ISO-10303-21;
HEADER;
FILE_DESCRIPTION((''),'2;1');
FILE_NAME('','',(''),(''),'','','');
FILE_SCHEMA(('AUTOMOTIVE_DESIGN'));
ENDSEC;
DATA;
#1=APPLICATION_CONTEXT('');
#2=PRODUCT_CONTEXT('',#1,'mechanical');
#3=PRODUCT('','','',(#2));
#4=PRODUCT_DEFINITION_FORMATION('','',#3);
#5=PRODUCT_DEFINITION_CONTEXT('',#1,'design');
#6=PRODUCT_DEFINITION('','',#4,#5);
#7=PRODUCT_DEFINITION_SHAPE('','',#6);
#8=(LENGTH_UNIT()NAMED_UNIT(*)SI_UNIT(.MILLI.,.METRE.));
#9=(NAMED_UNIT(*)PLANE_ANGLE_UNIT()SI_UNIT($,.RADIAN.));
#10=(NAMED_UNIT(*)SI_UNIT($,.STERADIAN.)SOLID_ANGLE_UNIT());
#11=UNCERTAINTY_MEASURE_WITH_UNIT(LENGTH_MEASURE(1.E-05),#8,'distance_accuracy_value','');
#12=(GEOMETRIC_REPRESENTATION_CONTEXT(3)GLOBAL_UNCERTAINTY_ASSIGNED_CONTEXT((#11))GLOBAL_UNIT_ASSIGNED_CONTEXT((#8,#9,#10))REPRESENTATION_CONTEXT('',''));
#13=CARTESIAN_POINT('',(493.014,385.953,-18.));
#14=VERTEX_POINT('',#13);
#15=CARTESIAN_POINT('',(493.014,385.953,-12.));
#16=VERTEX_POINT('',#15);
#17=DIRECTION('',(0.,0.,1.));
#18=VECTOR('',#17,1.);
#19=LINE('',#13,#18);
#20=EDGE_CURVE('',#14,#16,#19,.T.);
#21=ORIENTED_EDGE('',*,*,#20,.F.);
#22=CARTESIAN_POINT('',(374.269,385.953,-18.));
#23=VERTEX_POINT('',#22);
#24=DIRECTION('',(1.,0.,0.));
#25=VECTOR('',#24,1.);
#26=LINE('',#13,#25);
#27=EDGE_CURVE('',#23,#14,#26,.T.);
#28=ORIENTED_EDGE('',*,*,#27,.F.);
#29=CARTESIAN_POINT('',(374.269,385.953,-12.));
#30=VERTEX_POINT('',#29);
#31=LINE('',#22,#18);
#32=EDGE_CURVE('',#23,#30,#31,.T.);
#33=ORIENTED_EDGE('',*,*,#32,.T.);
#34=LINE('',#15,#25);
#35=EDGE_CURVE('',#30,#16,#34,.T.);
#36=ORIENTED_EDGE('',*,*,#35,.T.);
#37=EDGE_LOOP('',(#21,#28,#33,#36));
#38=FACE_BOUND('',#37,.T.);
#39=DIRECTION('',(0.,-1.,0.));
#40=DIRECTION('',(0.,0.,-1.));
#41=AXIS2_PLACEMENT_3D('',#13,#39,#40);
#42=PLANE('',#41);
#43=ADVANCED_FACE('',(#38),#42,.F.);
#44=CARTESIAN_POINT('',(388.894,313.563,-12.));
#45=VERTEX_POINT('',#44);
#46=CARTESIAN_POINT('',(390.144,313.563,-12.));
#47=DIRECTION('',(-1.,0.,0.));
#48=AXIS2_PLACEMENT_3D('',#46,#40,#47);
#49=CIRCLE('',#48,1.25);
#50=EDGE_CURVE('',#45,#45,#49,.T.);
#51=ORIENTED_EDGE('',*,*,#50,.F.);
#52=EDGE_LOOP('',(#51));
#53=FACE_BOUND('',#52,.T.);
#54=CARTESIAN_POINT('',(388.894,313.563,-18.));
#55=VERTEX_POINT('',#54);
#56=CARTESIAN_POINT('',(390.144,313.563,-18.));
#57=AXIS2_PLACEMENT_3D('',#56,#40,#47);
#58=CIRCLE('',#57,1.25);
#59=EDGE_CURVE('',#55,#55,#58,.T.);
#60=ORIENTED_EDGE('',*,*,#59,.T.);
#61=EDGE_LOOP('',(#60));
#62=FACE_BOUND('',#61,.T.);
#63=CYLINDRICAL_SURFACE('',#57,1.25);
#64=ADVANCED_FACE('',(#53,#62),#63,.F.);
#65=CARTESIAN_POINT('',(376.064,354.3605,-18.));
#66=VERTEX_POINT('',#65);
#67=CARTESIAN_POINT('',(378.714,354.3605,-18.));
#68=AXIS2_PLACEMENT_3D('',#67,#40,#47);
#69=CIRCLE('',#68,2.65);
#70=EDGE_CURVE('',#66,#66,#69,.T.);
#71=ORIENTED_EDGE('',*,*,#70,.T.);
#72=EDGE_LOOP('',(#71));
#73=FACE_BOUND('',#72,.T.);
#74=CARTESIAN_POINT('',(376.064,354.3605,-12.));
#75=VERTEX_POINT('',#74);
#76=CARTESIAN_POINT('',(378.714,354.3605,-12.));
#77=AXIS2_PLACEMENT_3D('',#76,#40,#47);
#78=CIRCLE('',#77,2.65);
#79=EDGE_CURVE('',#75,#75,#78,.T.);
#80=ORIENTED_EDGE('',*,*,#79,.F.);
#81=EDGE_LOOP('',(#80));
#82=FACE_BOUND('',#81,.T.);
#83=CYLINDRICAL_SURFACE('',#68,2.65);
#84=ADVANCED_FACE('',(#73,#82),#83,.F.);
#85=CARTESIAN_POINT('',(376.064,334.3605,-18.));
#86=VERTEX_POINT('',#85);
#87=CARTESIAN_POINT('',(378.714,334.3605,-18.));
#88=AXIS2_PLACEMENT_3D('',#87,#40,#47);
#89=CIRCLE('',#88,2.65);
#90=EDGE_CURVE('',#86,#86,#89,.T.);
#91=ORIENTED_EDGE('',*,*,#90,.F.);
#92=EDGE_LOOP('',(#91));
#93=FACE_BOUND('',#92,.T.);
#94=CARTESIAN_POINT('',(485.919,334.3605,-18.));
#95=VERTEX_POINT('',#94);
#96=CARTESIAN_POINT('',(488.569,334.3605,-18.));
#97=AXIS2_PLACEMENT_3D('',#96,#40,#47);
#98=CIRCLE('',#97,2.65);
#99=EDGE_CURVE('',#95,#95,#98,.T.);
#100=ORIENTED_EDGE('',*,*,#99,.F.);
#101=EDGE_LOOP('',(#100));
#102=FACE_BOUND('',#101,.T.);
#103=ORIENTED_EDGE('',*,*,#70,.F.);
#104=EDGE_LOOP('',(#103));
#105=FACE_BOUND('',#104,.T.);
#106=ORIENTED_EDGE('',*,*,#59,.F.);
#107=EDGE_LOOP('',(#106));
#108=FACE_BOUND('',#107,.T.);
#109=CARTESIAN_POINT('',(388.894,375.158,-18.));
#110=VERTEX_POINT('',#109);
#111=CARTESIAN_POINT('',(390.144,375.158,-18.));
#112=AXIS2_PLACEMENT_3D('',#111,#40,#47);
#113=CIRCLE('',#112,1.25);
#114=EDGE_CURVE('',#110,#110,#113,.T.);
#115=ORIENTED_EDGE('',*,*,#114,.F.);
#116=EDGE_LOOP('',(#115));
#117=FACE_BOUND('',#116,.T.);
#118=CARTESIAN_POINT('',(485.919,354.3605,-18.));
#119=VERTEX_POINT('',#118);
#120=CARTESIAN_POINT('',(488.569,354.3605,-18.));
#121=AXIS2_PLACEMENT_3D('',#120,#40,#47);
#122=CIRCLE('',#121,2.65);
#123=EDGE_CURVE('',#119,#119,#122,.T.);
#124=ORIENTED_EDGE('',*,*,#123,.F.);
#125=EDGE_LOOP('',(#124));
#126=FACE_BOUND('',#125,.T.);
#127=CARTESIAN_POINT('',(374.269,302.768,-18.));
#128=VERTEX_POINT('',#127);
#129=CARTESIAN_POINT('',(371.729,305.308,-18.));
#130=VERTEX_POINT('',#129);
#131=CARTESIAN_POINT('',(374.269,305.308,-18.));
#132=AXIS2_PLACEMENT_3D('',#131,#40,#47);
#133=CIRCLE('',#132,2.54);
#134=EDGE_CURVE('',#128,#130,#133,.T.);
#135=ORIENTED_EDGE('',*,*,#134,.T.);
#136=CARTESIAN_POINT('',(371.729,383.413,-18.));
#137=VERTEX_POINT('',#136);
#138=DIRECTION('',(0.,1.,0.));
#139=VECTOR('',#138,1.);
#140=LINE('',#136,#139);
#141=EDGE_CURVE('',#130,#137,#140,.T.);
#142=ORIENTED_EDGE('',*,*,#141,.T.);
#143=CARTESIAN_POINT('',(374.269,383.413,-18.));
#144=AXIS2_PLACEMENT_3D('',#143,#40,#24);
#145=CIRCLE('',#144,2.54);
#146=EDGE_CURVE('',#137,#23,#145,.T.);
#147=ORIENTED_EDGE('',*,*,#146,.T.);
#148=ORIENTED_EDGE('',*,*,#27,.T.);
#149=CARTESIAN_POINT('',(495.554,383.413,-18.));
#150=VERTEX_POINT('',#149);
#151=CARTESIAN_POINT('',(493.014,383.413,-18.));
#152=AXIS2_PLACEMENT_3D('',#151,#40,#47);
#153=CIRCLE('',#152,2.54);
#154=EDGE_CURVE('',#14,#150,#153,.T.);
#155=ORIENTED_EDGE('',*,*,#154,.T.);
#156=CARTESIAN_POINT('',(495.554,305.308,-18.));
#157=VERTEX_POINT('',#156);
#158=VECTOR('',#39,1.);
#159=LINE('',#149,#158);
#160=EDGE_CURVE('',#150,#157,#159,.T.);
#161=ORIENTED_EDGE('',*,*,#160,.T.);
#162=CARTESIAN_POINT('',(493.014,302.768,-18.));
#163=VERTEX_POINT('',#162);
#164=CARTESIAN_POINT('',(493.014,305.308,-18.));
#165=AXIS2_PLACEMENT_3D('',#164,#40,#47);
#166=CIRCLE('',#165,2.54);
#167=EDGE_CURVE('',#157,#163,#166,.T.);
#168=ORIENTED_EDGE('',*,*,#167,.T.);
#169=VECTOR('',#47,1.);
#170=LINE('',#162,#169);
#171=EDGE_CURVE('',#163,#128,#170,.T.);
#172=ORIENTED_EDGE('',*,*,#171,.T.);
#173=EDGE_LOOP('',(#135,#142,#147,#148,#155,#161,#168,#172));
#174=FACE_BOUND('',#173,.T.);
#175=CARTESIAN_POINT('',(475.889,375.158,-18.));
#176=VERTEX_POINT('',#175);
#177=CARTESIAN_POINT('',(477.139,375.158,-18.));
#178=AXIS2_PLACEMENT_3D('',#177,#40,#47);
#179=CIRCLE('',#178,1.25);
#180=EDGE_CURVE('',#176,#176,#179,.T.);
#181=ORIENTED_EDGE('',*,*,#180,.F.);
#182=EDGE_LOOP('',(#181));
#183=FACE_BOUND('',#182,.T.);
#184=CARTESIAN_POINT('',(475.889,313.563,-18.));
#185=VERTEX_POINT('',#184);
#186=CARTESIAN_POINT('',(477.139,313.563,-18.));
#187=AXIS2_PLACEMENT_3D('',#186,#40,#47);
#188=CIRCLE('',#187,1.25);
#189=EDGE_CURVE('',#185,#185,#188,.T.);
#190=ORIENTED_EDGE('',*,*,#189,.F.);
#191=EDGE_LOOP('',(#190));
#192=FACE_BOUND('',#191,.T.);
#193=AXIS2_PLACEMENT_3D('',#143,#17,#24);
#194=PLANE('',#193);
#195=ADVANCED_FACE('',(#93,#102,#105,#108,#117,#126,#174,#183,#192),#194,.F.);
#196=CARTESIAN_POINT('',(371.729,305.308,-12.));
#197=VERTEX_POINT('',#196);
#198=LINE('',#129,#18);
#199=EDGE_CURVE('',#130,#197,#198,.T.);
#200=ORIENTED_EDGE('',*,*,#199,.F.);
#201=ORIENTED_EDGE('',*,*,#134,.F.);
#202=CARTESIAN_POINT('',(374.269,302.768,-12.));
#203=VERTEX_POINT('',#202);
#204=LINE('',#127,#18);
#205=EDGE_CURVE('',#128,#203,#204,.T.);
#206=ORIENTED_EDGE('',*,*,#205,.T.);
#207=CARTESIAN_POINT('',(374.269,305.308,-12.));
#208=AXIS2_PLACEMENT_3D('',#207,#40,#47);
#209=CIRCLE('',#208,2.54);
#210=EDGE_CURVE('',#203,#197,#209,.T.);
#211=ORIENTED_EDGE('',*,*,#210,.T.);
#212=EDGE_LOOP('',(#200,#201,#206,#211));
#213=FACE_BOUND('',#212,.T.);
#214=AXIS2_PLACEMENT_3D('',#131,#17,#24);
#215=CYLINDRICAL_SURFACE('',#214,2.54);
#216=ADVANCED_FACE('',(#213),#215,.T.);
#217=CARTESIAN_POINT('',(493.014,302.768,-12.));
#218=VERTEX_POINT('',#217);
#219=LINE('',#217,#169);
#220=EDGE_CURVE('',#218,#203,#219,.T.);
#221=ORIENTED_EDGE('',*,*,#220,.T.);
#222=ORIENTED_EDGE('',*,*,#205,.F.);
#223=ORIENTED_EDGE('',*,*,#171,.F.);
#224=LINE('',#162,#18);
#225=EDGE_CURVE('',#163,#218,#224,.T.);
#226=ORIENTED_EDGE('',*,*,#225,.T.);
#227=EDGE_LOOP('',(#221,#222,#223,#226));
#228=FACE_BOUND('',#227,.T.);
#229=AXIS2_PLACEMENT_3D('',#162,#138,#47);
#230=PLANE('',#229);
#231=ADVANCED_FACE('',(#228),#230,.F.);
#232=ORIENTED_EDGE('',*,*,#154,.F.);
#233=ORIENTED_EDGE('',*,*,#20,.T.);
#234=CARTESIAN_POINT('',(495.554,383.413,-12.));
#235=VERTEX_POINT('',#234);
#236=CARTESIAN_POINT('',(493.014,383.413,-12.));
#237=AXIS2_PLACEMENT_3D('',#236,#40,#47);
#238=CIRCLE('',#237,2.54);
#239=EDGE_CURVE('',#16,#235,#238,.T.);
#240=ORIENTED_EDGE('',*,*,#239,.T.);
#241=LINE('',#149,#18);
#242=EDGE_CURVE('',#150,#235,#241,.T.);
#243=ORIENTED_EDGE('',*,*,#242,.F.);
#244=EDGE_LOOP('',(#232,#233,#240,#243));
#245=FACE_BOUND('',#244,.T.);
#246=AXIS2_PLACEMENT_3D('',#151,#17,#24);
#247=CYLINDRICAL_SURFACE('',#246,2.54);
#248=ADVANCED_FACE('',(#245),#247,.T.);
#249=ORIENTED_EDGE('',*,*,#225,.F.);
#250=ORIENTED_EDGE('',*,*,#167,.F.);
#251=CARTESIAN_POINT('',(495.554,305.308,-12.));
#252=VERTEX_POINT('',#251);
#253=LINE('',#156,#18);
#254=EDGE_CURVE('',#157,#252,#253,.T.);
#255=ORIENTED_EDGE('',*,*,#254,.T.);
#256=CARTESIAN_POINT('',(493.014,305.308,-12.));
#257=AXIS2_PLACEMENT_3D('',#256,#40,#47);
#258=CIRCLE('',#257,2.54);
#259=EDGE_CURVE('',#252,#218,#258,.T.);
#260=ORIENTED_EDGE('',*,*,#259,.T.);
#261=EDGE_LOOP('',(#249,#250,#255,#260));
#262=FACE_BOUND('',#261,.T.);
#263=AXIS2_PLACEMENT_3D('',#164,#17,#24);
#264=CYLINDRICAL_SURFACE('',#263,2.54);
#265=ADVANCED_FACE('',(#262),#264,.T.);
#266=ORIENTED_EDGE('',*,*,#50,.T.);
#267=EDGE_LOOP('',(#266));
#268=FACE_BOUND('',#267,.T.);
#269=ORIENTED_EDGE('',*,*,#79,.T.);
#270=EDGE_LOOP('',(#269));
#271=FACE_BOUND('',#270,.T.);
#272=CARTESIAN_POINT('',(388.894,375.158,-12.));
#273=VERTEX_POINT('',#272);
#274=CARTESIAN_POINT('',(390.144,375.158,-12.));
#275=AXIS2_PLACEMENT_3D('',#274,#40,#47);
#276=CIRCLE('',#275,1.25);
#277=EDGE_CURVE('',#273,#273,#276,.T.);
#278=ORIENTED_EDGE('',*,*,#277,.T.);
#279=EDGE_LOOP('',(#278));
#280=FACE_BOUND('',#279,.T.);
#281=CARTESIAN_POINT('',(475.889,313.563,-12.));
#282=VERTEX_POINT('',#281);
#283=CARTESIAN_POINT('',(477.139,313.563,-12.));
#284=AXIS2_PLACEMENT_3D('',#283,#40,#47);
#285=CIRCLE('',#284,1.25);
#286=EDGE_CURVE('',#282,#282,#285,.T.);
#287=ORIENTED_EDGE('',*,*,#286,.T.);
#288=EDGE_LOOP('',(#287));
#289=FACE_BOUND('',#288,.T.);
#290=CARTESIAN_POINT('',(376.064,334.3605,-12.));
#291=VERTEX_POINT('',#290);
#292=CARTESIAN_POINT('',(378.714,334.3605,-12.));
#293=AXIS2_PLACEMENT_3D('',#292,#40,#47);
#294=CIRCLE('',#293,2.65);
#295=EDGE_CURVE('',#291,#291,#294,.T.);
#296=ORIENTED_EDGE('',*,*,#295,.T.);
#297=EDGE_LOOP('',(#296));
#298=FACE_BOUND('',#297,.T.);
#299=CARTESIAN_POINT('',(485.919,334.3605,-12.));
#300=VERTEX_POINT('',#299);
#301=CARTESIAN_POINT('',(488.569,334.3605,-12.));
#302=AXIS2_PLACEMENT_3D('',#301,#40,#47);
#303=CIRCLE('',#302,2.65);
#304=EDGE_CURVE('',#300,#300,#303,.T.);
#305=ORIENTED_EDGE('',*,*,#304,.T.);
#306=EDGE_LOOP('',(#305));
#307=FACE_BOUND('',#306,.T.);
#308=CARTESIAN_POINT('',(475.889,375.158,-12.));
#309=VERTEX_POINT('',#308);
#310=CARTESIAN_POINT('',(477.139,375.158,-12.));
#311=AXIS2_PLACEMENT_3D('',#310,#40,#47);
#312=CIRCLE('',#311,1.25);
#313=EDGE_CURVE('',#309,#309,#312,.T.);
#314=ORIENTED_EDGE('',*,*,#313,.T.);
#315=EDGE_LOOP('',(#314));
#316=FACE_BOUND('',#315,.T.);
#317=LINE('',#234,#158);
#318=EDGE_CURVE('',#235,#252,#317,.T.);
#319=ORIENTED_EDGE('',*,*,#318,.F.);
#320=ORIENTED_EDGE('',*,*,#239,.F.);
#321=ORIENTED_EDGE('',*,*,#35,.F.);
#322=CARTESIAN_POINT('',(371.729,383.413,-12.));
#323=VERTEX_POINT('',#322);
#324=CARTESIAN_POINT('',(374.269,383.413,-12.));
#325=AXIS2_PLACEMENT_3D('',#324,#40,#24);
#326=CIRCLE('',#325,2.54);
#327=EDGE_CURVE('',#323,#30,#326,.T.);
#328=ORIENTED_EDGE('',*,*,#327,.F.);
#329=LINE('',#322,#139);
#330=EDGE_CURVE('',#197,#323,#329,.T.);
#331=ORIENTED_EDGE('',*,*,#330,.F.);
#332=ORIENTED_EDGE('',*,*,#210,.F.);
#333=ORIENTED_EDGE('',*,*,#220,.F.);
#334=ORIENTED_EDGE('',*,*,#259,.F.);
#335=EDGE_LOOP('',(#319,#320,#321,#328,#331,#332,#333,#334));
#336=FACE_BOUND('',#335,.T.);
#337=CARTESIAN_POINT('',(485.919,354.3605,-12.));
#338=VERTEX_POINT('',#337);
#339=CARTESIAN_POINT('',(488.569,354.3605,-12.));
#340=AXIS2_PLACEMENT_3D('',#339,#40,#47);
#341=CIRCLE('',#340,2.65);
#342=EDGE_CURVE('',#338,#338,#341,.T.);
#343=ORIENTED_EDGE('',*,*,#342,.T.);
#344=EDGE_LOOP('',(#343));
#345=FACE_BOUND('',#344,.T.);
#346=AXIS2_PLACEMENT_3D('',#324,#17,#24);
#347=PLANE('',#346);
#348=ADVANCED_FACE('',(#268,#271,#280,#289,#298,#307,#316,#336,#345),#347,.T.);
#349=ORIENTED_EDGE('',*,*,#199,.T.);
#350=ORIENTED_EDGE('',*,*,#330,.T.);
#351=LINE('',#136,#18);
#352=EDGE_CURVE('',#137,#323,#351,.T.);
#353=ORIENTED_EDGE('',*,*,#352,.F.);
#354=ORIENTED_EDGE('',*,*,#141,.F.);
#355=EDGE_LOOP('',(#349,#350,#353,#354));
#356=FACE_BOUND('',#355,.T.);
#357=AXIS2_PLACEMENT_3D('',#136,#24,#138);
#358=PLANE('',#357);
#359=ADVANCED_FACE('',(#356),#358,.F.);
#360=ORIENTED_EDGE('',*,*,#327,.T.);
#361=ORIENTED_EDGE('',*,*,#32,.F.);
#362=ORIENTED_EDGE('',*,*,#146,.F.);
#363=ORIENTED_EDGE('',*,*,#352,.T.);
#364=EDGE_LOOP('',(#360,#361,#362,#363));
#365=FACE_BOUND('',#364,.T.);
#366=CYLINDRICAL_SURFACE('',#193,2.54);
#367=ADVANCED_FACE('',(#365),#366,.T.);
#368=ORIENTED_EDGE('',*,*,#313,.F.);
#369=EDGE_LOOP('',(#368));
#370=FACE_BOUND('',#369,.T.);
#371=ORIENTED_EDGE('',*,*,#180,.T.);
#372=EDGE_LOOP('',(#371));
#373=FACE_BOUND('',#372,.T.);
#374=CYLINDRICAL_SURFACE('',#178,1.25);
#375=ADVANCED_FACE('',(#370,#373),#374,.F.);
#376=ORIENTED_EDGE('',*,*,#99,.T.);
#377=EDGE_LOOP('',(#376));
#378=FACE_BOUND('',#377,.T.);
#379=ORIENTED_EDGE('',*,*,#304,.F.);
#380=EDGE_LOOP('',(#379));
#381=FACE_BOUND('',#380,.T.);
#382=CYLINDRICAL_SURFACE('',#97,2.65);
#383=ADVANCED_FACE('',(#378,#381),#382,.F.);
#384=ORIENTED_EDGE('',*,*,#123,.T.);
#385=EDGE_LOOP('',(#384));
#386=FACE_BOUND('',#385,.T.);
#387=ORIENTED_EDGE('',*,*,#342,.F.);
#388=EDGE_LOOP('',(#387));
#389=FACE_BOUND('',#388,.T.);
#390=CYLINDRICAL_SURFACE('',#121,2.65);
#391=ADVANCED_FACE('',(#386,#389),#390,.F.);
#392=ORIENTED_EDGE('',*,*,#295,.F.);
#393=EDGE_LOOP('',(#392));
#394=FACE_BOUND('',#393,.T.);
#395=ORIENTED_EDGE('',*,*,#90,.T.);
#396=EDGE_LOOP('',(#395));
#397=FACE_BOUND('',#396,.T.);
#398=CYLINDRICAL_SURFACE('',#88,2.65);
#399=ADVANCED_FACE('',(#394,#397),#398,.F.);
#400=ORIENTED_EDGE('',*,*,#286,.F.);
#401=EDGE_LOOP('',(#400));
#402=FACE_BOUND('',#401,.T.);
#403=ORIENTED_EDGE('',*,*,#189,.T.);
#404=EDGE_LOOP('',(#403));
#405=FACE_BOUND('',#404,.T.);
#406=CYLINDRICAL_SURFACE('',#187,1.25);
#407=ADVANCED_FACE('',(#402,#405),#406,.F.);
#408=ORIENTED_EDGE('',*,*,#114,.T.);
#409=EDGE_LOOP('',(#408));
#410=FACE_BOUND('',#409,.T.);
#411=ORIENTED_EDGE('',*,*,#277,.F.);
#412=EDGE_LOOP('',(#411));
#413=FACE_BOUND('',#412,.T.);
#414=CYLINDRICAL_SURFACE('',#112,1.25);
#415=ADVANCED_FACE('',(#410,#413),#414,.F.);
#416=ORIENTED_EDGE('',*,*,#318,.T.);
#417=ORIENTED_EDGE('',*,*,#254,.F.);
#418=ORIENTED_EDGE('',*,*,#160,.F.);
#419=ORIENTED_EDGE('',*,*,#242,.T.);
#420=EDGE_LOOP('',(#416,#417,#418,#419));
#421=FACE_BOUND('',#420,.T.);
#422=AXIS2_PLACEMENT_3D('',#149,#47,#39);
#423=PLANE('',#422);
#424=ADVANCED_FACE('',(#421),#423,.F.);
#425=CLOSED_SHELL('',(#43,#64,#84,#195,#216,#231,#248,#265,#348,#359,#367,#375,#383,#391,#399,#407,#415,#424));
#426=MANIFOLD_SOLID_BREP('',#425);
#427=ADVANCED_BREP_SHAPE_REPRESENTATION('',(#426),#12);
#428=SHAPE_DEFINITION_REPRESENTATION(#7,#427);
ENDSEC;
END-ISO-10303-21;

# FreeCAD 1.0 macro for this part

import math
import FreeCAD as App
import Part
import Sketcher

doc = App.newDocument("Part")
body = doc.addObject("PartDesign::Body", "Body")

# Sketch on XY plane
sketch1 = body.newObject("Sketcher::SketchObject", "Sketch")
sketch1.AttachmentSupport = (doc.getObject("XY_Plane"), [""])
sketch1.MapMode = "FlatFace"
sketch1.AttachmentOffset = App.Placement(App.Vector(0, 0, -12), App.Rotation())
sketch1.addGeometry(Part.LineSegment(App.Vector(374.3, 386, 0), App.Vector(493, 386, 0)), False)
sketch1.addGeometry(Part.ArcOfCircle(Part.Circle(App.Vector(493, 383.4, 0), App.Vector(0, 0, 1), 2.5), math.radians(0), math.radians(90)), False)
sketch1.addGeometry(Part.LineSegment(App.Vector(495.6, 383.4, 0), App.Vector(495.6, 305.3, 0)), False)
sketch1.addGeometry(Part.ArcOfCircle(Part.Circle(App.Vector(493, 305.3, 0), App.Vector(0, 0, 1), 2.5), math.radians(-90), math.radians(0)), False)
sketch1.addGeometry(Part.LineSegment(App.Vector(493, 302.8, 0), App.Vector(374.3, 302.8, 0)), False)
sketch1.addGeometry(Part.ArcOfCircle(Part.Circle(App.Vector(374.3, 305.3, 0), App.Vector(0, 0, 1), 2.5), math.radians(-180), math.radians(-90)), False)
sketch1.addGeometry(Part.LineSegment(App.Vector(371.7, 305.3, 0), App.Vector(371.7, 383.4, 0)), False)
sketch1.addGeometry(Part.ArcOfCircle(Part.Circle(App.Vector(374.3, 383.4, 0), App.Vector(0, 0, 1), 2.5), math.radians(90), math.radians(180)), False)
sketch1.addConstraint(Sketcher.Constraint("Tangent", 0, 2, 1, 2))
sketch1.addConstraint(Sketcher.Constraint("Tangent", 1, 1, 2, 1))
sketch1.addConstraint(Sketcher.Constraint("Tangent", 2, 2, 3, 2))
sketch1.addConstraint(Sketcher.Constraint("Tangent", 3, 1, 4, 1))
sketch1.addConstraint(Sketcher.Constraint("Tangent", 4, 2, 5, 2))
sketch1.addConstraint(Sketcher.Constraint("Tangent", 5, 1, 6, 1))
sketch1.addConstraint(Sketcher.Constraint("Tangent", 6, 2, 7, 2))
sketch1.addConstraint(Sketcher.Constraint("Tangent", 7, 1, 0, 1))
sketch1.addConstraint(Sketcher.Constraint("Horizontal", 0))
sketch1.addConstraint(Sketcher.Constraint("Vertical", 2))
sketch1.addConstraint(Sketcher.Constraint("Horizontal", 4))
sketch1.addConstraint(Sketcher.Constraint("Vertical", 6))
sketch1.addConstraint(Sketcher.Constraint("Equal", 1, 3))
sketch1.addConstraint(Sketcher.Constraint("Equal", 3, 5))
sketch1.addConstraint(Sketcher.Constraint("Equal", 5, 7))
sketch1.addConstraint(Sketcher.Constraint("Radius", 1, 2.54))
sketch1.addConstraint(Sketcher.Constraint("DistanceX", 0, 1, 0, 2, 118.745))
sketch1.addConstraint(Sketcher.Constraint("DistanceY", 2, 2, 2, 1, 78.105))
sketch1.addConstraint(Sketcher.Constraint("DistanceX", -1, 1, 1, 3, 493.014))
sketch1.addConstraint(Sketcher.Constraint("DistanceY", -1, 1, 1, 3, 383.413))
pad1 = body.newObject("PartDesign::Pad", "Pad")
pad1.Profile = sketch1
pad1.Length = 6
pad1.Reversed = True

# Sketch on XY plane
sketch2 = body.newObject("Sketcher::SketchObject", "Sketch001")
sketch2.AttachmentSupport = (doc.getObject("XY_Plane"), [""])
sketch2.MapMode = "FlatFace"
sketch2.AttachmentOffset = App.Placement(App.Vector(0, 0, -18), App.Rotation())
sketch2.addGeometry(Part.Circle(App.Vector(488.6, 354.4, 0), App.Vector(0, 0, 1), 2.6), False)
sketch2.addGeometry(Part.Circle(App.Vector(488.6, 334.4, 0), App.Vector(0, 0, 1), 2.6), False)
sketch2.addGeometry(Part.Circle(App.Vector(378.7, 334.4, 0), App.Vector(0, 0, 1), 2.6), False)
sketch2.addGeometry(Part.Circle(App.Vector(378.7, 354.4, 0), App.Vector(0, 0, 1), 2.6), False)
sketch2.addConstraint(Sketcher.Constraint("Equal", 0, 1))
sketch2.addConstraint(Sketcher.Constraint("Equal", 1, 2))
sketch2.addConstraint(Sketcher.Constraint("Equal", 2, 3))
sketch2.addConstraint(Sketcher.Constraint("Horizontal", 1, 3, 2, 3))
sketch2.addConstraint(Sketcher.Constraint("Horizontal", 0, 3, 3, 3))
sketch2.addConstraint(Sketcher.Constraint("Vertical", 0, 3, 1, 3))
sketch2.addConstraint(Sketcher.Constraint("Vertical", 2, 3, 3, 3))
sketch2.addConstraint(Sketcher.Constraint("Diameter", 0, 5.3))
sketch2.addConstraint(Sketcher.Constraint("DistanceY", 1, 3, 0, 3, 20.0))
sketch2.addConstraint(Sketcher.Constraint("DistanceX", -1, 1, 0, 3, 488.569))
sketch2.addConstraint(Sketcher.Constraint("DistanceX", -1, 1, 2, 3, 378.714))
sketch2.addConstraint(Sketcher.Constraint("DistanceY", -1, 1, 0, 3, 354.3605))
doc.recompute()
hole = body.newObject("PartDesign::Hole", "Hole")
hole.Profile = sketch2
hole.ThreadType = "None"
hole.Diameter = 5.3
hole.DepthType = "ThroughAll"
hole.Reversed = True

# Sketch on XY plane
sketch3 = body.newObject("Sketcher::SketchObject", "Sketch002")
sketch3.AttachmentSupport = (doc.getObject("XY_Plane"), [""])
sketch3.MapMode = "FlatFace"
sketch3.AttachmentOffset = App.Placement(App.Vector(0, 0, -18), App.Rotation())
sketch3.addGeometry(Part.Circle(App.Vector(477.1, 375.2, 0), App.Vector(0, 0, 1), 1.2), False)
sketch3.addGeometry(Part.Circle(App.Vector(390.1, 375.2, 0), App.Vector(0, 0, 1), 1.2), False)
sketch3.addGeometry(Part.Circle(App.Vector(390.1, 313.6, 0), App.Vector(0, 0, 1), 1.2), False)
sketch3.addGeometry(Part.Circle(App.Vector(477.1, 313.6, 0), App.Vector(0, 0, 1), 1.2), False)
sketch3.addConstraint(Sketcher.Constraint("Equal", 0, 1))
sketch3.addConstraint(Sketcher.Constraint("Equal", 1, 2))
sketch3.addConstraint(Sketcher.Constraint("Equal", 2, 3))
sketch3.addConstraint(Sketcher.Constraint("Horizontal", 0, 3, 1, 3))
sketch3.addConstraint(Sketcher.Constraint("Horizontal", 2, 3, 3, 3))
sketch3.addConstraint(Sketcher.Constraint("Vertical", 1, 3, 2, 3))
sketch3.addConstraint(Sketcher.Constraint("Vertical", 0, 3, 3, 3))
sketch3.addConstraint(Sketcher.Constraint("Diameter", 0, 2.5))
sketch3.addConstraint(Sketcher.Constraint("DistanceX", -1, 1, 0, 3, 477.139))
sketch3.addConstraint(Sketcher.Constraint("DistanceY", -1, 1, 0, 3, 375.158))
sketch3.addConstraint(Sketcher.Constraint("DistanceX", -1, 1, 1, 3, 390.144))
sketch3.addConstraint(Sketcher.Constraint("DistanceY", -1, 1, 2, 3, 313.563))
doc.recompute()
hole2 = body.newObject("PartDesign::Hole", "Hole001")
hole2.Profile = sketch3
hole2.ThreadType = "None"
hole2.Diameter = 2.5
hole2.DepthType = "ThroughAll"
hole2.Reversed = True

doc.recompute()
